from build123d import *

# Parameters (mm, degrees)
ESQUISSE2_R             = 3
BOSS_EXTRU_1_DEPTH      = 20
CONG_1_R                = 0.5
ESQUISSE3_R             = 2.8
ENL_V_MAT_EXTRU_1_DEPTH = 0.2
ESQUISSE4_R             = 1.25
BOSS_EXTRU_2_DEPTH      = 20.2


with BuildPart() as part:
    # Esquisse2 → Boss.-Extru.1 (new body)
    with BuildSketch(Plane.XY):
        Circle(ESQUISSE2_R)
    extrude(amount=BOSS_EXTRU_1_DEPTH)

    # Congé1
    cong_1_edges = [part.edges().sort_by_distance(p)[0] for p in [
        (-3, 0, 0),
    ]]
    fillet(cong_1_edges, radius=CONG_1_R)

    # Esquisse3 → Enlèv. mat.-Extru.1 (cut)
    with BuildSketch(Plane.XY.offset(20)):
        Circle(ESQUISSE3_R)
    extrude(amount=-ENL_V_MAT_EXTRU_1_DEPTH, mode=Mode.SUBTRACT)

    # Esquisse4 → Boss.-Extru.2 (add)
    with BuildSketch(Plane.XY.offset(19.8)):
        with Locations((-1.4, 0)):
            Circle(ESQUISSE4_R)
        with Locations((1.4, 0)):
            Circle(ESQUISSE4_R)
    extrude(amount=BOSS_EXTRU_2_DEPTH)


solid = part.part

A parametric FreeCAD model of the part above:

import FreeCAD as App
import Part
import Sketcher

V = App.Vector
Q = App.Units.Quantity


def edges_at(feature, points):
    """Names of the edges that pass closest to the given points."""
    edges = feature.Shape.Edges
    near = lambda p: min(range(len(edges)), key=lambda i: edges[i].distToShape(Part.Vertex(*p))[0])
    return sorted({f"Edge{near(p) + 1}" for p in points})

doc = App.newDocument("Part")
body = doc.addObject("PartDesign::Body", "Body")

# Sketch on XY plane
sketch1 = body.newObject("Sketcher::SketchObject", "Sketch")
sketch1.AttachmentSupport = (doc.getObject("XY_Plane"), [""])
sketch1.MapMode = "FlatFace"
sketch1.addGeometry(Part.Circle(V(0, 0, 0), V(0, 0, 1), 3), False)
sketch1.addConstraint(Sketcher.Constraint("Coincident", 0, 3, -1, 1))
sketch1.addConstraint(Sketcher.Constraint("Diameter", 0, Q("6 mm")))
pad1 = body.newObject("PartDesign::Pad", "Pad")
pad1.Profile = sketch1
pad1.Length = 20
doc.recompute()

fillet = body.newObject("PartDesign::Fillet", "Fillet")
fillet.Base = (pad1, edges_at(pad1, [(-3, 0, 0)]))
fillet.Radius = 0.5

# Sketch on XY plane
sketch2 = body.newObject("Sketcher::SketchObject", "Sketch001")
sketch2.AttachmentSupport = (doc.getObject("XY_Plane"), [""])
sketch2.MapMode = "FlatFace"
sketch2.AttachmentOffset = App.Placement(V(0, 0, 20), App.Rotation())
sketch2.addGeometry(Part.Circle(V(0, 0, 0), V(0, 0, 1), 2.8), False)
sketch2.addConstraint(Sketcher.Constraint("Coincident", 0, 3, -1, 1))
sketch2.addConstraint(Sketcher.Constraint("Diameter", 0, Q("5.6 mm")))
pocket1 = body.newObject("PartDesign::Pocket", "Pocket")
pocket1.Profile = sketch2
pocket1.Length = 0.2

# Sketch on XY plane
sketch3 = body.newObject("Sketcher::SketchObject", "Sketch002")
sketch3.AttachmentSupport = (doc.getObject("XY_Plane"), [""])
sketch3.MapMode = "FlatFace"
sketch3.AttachmentOffset = App.Placement(V(0, 0, 19.8), App.Rotation())
sketch3.addGeometry(Part.Circle(V(-1.4, 0, 0), V(0, 0, 1), 1.2), False)
sketch3.addGeometry(Part.Circle(V(1.4, 0, 0), V(0, 0, 1), 1.2), False)
sketch3.addConstraint(Sketcher.Constraint("Equal", 0, 1))
sketch3.addConstraint(Sketcher.Constraint("Symmetric", 0, 3, 1, 3, -1, 1))
sketch3.addConstraint(Sketcher.Constraint("PointOnObject", 0, 3, -1))
sketch3.addConstraint(Sketcher.Constraint("Diameter", 0, Q("2.5 mm")))
sketch3.addConstraint(Sketcher.Constraint("DistanceX", 0, 3, -1, 1, Q("1.4 mm")))
pad2 = body.newObject("PartDesign::Pad", "Pad001")
pad2.Profile = sketch3
pad2.Length = 20.2

doc.recompute()
